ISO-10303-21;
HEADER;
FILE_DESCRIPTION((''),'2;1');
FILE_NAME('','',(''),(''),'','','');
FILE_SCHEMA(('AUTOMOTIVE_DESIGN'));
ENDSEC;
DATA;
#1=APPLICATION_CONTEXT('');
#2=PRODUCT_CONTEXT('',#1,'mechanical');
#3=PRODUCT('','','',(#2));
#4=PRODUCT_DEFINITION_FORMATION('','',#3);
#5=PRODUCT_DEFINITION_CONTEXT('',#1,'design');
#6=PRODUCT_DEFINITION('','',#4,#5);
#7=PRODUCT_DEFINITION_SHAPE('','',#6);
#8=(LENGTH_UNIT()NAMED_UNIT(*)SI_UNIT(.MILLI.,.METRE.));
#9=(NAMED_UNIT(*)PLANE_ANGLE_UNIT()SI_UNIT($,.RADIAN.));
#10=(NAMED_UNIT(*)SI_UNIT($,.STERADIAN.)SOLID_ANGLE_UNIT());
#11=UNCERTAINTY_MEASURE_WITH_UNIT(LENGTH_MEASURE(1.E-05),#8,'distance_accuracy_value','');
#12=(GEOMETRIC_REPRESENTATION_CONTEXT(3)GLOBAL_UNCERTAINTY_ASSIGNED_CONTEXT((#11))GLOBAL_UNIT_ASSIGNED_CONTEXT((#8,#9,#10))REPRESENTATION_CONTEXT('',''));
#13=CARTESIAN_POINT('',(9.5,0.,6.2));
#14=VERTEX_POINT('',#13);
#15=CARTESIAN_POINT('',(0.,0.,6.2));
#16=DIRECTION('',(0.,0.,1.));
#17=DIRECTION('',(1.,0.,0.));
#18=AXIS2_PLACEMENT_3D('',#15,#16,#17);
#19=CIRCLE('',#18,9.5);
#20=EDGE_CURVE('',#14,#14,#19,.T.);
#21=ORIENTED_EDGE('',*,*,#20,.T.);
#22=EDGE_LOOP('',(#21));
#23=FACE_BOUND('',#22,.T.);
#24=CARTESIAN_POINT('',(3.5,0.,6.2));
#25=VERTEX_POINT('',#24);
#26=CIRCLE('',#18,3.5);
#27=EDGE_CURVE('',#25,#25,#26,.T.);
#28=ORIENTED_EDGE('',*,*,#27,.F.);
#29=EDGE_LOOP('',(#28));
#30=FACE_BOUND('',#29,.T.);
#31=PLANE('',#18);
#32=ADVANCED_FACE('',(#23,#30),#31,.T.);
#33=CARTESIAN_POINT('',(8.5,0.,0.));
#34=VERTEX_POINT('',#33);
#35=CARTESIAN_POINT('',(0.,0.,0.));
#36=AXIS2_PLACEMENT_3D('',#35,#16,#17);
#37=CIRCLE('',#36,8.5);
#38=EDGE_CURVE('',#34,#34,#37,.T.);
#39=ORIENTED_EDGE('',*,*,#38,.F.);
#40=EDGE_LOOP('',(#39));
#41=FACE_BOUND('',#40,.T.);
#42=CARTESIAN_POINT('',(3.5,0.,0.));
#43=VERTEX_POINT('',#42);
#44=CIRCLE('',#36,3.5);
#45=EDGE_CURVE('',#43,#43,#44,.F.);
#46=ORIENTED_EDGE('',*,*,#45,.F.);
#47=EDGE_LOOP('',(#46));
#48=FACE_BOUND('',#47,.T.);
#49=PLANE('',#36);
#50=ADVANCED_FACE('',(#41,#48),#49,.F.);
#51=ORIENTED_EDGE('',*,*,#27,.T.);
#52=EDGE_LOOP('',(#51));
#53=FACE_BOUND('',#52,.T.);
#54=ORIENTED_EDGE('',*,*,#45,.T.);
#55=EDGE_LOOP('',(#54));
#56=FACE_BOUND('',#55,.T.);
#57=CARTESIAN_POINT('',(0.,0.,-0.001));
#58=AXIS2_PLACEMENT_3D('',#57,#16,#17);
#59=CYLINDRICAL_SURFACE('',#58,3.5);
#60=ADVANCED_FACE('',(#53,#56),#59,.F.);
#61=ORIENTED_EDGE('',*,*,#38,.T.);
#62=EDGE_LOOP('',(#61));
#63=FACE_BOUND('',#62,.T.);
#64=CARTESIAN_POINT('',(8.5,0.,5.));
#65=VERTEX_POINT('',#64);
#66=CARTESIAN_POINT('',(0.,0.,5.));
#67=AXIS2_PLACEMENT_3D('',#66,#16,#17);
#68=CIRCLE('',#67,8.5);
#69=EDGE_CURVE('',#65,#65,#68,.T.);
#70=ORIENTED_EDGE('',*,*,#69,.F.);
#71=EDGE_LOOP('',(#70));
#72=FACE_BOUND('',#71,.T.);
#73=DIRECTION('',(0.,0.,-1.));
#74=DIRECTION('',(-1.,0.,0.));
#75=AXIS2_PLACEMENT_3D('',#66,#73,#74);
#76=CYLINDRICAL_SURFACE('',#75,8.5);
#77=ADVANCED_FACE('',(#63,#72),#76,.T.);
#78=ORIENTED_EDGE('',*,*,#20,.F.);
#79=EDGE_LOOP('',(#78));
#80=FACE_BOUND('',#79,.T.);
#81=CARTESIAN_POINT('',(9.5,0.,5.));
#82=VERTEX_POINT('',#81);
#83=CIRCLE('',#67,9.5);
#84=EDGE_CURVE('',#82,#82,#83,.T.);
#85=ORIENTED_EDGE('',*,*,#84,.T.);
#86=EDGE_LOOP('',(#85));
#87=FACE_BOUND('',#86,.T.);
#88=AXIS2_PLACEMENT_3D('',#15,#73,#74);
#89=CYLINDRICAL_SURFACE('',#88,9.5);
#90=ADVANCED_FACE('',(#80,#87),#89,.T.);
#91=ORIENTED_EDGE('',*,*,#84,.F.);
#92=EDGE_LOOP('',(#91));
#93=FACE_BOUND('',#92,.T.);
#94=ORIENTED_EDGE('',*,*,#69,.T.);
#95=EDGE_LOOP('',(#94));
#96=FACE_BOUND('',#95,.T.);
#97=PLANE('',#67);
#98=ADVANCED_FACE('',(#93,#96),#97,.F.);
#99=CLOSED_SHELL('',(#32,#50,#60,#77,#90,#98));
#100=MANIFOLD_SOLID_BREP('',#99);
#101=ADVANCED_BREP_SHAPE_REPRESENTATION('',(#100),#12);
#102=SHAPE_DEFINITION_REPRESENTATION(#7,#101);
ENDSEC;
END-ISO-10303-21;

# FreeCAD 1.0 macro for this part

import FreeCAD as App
import Part
import Sketcher

V = App.Vector
Q = App.Units.Quantity

doc = App.newDocument("Part")
body = doc.addObject("PartDesign::Body", "Body")

sketch1 = body.newObject("Sketcher::SketchObject", "Sketch")
sketch1.AttachmentSupport = (doc.getObject("XY_Plane"), [""])
sketch1.MapMode = "FlatFace"
sketch1.addGeometry(Part.Circle(V(0, 0, 0), V(0, 0, 1), 8), False)
sketch1.addConstraint([
    Sketcher.Constraint("Coincident", 0, 3, -1, 1),
    Sketcher.Constraint("Diameter", 0, Q("17 mm")),
])
pad1 = body.newObject("PartDesign::Pad", "Pad")
pad1.Profile = sketch1
pad1.Length = 5

sketch2 = body.newObject("Sketcher::SketchObject", "Sketch001")
sketch2.AttachmentSupport = (doc.getObject("XY_Plane"), [""])
sketch2.MapMode = "FlatFace"
sketch2.AttachmentOffset = App.Placement(V(0, 0, 5), App.Rotation())
sketch2.addGeometry(Part.Circle(V(0, 0, 0), V(0, 0, 1), 10), False)
sketch2.addConstraint([
    Sketcher.Constraint("Coincident", 0, 3, -1, 1),
    Sketcher.Constraint("Diameter", 0, Q("19 mm")),
])
pad2 = body.newObject("PartDesign::Pad", "Pad001")
pad2.Profile = sketch2
pad2.Length = 1.2

sketch3 = body.newObject("Sketcher::SketchObject", "Sketch002")
sketch3.AttachmentSupport = (doc.getObject("XY_Plane"), [""])
sketch3.MapMode = "FlatFace"
sketch3.AttachmentOffset = App.Placement(V(0, 0, 6.2), App.Rotation())
sketch3.addGeometry(Part.Circle(V(0, 0, 0), V(0, 0, 1), 3.5), False)
sketch3.addConstraint([
    Sketcher.Constraint("Coincident", 0, 3, -1, 1),
    Sketcher.Constraint("Diameter", 0, Q("7 mm")),
])
pocket1 = body.newObject("PartDesign::Pocket", "Pocket")
pocket1.Profile = sketch3
pocket1.Type = "UpToFirst"

doc.recompute()
